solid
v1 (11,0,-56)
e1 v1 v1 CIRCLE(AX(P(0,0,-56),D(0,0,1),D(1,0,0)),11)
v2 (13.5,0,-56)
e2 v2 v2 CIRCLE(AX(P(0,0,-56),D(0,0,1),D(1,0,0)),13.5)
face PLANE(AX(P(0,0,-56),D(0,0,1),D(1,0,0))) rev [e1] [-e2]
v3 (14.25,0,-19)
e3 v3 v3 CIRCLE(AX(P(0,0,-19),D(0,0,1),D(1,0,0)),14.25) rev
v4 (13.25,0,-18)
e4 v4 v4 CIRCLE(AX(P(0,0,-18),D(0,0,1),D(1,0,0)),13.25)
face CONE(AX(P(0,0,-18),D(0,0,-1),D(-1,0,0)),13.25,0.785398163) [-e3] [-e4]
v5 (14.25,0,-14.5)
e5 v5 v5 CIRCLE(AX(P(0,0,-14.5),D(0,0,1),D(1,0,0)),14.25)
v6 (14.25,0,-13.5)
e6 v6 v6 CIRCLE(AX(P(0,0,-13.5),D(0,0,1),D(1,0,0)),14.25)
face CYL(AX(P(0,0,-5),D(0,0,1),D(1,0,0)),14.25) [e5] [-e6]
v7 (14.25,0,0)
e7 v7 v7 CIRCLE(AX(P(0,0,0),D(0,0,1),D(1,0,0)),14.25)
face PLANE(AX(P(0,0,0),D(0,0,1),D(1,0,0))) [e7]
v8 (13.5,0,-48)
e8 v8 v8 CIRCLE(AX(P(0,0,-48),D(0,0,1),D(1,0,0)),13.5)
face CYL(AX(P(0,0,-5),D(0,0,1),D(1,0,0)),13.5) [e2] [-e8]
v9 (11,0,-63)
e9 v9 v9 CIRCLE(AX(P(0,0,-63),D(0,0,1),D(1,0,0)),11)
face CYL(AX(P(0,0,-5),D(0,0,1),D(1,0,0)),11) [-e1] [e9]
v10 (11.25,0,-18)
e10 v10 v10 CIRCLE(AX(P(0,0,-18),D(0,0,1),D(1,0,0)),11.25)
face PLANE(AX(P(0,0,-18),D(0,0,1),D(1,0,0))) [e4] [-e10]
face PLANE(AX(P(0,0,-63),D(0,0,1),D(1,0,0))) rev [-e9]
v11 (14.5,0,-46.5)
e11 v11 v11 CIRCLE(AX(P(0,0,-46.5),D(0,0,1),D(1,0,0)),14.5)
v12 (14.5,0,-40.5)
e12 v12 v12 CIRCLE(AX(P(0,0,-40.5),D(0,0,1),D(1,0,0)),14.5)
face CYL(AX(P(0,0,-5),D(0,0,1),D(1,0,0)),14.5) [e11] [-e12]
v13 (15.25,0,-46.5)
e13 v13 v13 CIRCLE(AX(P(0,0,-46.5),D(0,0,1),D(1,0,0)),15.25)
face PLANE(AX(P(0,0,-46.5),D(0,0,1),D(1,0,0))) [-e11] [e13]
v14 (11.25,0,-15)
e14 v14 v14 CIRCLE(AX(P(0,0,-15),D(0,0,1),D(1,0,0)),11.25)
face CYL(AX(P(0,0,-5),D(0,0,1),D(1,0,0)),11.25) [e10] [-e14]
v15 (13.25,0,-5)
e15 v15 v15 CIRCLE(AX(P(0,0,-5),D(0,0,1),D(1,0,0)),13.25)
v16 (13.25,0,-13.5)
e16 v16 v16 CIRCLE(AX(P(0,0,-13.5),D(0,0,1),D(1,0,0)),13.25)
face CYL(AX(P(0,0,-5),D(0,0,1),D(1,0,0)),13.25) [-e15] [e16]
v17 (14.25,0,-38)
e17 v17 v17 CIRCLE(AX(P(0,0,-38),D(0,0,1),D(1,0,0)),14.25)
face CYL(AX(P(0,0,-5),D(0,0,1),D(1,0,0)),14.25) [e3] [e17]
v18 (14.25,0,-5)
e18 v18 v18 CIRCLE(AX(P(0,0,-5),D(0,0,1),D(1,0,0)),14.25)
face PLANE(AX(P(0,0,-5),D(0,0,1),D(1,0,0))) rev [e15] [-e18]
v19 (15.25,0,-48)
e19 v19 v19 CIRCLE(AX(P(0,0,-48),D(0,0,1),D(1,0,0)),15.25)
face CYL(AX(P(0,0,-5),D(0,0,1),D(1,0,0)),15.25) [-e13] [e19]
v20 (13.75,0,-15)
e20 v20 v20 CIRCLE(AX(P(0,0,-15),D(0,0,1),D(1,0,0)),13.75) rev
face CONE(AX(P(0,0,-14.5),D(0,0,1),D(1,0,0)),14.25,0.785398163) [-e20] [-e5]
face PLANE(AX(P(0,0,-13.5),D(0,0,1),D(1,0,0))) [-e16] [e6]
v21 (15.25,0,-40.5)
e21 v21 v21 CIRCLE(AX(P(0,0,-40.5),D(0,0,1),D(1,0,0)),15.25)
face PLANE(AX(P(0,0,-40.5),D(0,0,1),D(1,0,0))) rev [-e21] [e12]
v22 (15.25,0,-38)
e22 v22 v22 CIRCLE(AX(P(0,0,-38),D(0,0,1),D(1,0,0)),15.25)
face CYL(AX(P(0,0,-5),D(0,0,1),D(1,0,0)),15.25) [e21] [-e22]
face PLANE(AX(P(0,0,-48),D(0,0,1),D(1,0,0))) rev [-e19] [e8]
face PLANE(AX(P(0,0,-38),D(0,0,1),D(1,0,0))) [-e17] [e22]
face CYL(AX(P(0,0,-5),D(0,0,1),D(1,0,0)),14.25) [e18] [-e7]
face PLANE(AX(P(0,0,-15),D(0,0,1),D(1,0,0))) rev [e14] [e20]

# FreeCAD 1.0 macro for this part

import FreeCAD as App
import Part
import Sketcher
Q = App.Units.Quantity


def edges_at(feature, points):
    """Names of the edges that pass closest to the given points."""
    edges = feature.Shape.Edges
    near = lambda p: min(range(len(edges)), key=lambda i: edges[i].distToShape(Part.Vertex(*p))[0])
    return sorted({f"Edge{near(p) + 1}" for p in points})


def add_polygon(sketch, points):
    """Adds a closed chain of lines whose ends are joined by coincident constraints."""
    first, n = sketch.GeometryCount, len(points)
    for a, b in zip(points, points[1:] + points[:1]):
        sketch.addGeometry(Part.LineSegment(App.Vector(*a, 0), App.Vector(*b, 0)), False)
    for i in range(n):
        sketch.addConstraint(Sketcher.Constraint("Coincident", first + i, 2, first + (i + 1) % n, 1))

doc = App.newDocument("Part")
body = doc.addObject("PartDesign::Body", "Body")

sketch1 = body.newObject("Sketcher::SketchObject", "Sketch")
sketch1.AttachmentSupport = (doc.getObject("YZ_Plane"), [""])
sketch1.MapMode = "FlatFace"
add_polygon(sketch1, [(14.25, 0), (0, 0), (0, -63), (11, -63), (11, -56), (13.5, -56), (13.5, -48), (15.25, -48), (15.25, -46.5), (14.5, -46.5), (14.5, -40.5), (15.25, -40.5), (15.25, -38), (14.25, -38), (14.25, -18), (11.25, -18), (11.25, -15), (14.25, -15), (14.25, -13.5), (13.25, -13.5), (13.25, -5), (14.25, -5)])
sketch1.addConstraint([
    Sketcher.Constraint("Horizontal", 0),
    Sketcher.Constraint("Vertical", 1),
    Sketcher.Constraint("Horizontal", 2),
    Sketcher.Constraint("Vertical", 3),
    Sketcher.Constraint("Horizontal", 4),
    Sketcher.Constraint("Vertical", 5),
    Sketcher.Constraint("Horizontal", 6),
    Sketcher.Constraint("Vertical", 7),
    Sketcher.Constraint("Horizontal", 8),
    Sketcher.Constraint("Vertical", 9),
    Sketcher.Constraint("Horizontal", 10),
    Sketcher.Constraint("Vertical", 11),
    Sketcher.Constraint("Horizontal", 12),
    Sketcher.Constraint("Vertical", 13),
    Sketcher.Constraint("Horizontal", 14),
    Sketcher.Constraint("Vertical", 15),
    Sketcher.Constraint("Horizontal", 16),
    Sketcher.Constraint("Vertical", 17),
    Sketcher.Constraint("Horizontal", 18),
    Sketcher.Constraint("Vertical", 19),
    Sketcher.Constraint("Horizontal", 20),
    Sketcher.Constraint("Vertical", 21),
    Sketcher.Constraint("Coincident", 0, 2, -1, 1),
    Sketcher.Constraint("Vertical", 7, 2, 10, 2),
    Sketcher.Constraint("Vertical", 13, 2, 16, 2),
    Sketcher.Constraint("Vertical", 17, 2, 20, 2),
    Sketcher.Constraint("Equal", 12, 18),
    Sketcher.Constraint("Equal", 4, 11),
    Sketcher.Constraint("Equal", 16, 15),
    Sketcher.Constraint("Equal", 7, 17),
    Sketcher.Constraint("DistanceX", 2, 1, 2, 2, Q("11 mm")),
    Sketcher.Constraint("DistanceX", 12, 2, 12, 1, Q("1 mm")),
    Sketcher.Constraint("DistanceX", 14, 2, 14, 1, Q("3 mm")),
    Sketcher.Constraint("DistanceY", 1, 2, 1, 1, Q("63 mm")),
    Sketcher.Constraint("DistanceY", 3, 1, 3, 2, Q("7 mm")),
    Sketcher.Constraint("DistanceY", 5, 1, 5, 2, Q("8 mm")),
    Sketcher.Constraint("DistanceY", 9, 1, 9, 2, Q("6 mm")),
    Sketcher.Constraint("DistanceY", 13, 1, 13, 2, Q("20 mm")),
    Sketcher.Constraint("DistanceY", 21, 1, 21, 2, Q("5 mm")),
    Sketcher.Constraint("DistanceX", 4, 1, 4, 2, Q("2.5 mm")),
    Sketcher.Constraint("DistanceY", 7, 1, 7, 2, Q("1.5 mm")),
    Sketcher.Constraint("DistanceX", 5, 2, 8, 2, Q("1 mm")),
    Sketcher.Constraint("DistanceX", 0, 2, 0, 1, Q("14.25 mm")),
])
revolution = body.newObject("PartDesign::Revolution", "Revolution")
revolution.Profile = sketch1
revolution.ReferenceAxis = (sketch1, ["V_Axis"])
revolution.Angle = 360
doc.recompute()

chamfer = body.newObject("PartDesign::Chamfer", "Chamfer")
chamfer.Base = (revolution, edges_at(revolution, [(-14.25, 0, -18)]))
chamfer.Size = 1
doc.recompute()

chamfer2 = body.newObject("PartDesign::Chamfer", "Chamfer001")
chamfer2.Base = (chamfer, edges_at(chamfer, [(-14.25, 0, -15)]))
chamfer2.Size = 0.5

doc.recompute()
